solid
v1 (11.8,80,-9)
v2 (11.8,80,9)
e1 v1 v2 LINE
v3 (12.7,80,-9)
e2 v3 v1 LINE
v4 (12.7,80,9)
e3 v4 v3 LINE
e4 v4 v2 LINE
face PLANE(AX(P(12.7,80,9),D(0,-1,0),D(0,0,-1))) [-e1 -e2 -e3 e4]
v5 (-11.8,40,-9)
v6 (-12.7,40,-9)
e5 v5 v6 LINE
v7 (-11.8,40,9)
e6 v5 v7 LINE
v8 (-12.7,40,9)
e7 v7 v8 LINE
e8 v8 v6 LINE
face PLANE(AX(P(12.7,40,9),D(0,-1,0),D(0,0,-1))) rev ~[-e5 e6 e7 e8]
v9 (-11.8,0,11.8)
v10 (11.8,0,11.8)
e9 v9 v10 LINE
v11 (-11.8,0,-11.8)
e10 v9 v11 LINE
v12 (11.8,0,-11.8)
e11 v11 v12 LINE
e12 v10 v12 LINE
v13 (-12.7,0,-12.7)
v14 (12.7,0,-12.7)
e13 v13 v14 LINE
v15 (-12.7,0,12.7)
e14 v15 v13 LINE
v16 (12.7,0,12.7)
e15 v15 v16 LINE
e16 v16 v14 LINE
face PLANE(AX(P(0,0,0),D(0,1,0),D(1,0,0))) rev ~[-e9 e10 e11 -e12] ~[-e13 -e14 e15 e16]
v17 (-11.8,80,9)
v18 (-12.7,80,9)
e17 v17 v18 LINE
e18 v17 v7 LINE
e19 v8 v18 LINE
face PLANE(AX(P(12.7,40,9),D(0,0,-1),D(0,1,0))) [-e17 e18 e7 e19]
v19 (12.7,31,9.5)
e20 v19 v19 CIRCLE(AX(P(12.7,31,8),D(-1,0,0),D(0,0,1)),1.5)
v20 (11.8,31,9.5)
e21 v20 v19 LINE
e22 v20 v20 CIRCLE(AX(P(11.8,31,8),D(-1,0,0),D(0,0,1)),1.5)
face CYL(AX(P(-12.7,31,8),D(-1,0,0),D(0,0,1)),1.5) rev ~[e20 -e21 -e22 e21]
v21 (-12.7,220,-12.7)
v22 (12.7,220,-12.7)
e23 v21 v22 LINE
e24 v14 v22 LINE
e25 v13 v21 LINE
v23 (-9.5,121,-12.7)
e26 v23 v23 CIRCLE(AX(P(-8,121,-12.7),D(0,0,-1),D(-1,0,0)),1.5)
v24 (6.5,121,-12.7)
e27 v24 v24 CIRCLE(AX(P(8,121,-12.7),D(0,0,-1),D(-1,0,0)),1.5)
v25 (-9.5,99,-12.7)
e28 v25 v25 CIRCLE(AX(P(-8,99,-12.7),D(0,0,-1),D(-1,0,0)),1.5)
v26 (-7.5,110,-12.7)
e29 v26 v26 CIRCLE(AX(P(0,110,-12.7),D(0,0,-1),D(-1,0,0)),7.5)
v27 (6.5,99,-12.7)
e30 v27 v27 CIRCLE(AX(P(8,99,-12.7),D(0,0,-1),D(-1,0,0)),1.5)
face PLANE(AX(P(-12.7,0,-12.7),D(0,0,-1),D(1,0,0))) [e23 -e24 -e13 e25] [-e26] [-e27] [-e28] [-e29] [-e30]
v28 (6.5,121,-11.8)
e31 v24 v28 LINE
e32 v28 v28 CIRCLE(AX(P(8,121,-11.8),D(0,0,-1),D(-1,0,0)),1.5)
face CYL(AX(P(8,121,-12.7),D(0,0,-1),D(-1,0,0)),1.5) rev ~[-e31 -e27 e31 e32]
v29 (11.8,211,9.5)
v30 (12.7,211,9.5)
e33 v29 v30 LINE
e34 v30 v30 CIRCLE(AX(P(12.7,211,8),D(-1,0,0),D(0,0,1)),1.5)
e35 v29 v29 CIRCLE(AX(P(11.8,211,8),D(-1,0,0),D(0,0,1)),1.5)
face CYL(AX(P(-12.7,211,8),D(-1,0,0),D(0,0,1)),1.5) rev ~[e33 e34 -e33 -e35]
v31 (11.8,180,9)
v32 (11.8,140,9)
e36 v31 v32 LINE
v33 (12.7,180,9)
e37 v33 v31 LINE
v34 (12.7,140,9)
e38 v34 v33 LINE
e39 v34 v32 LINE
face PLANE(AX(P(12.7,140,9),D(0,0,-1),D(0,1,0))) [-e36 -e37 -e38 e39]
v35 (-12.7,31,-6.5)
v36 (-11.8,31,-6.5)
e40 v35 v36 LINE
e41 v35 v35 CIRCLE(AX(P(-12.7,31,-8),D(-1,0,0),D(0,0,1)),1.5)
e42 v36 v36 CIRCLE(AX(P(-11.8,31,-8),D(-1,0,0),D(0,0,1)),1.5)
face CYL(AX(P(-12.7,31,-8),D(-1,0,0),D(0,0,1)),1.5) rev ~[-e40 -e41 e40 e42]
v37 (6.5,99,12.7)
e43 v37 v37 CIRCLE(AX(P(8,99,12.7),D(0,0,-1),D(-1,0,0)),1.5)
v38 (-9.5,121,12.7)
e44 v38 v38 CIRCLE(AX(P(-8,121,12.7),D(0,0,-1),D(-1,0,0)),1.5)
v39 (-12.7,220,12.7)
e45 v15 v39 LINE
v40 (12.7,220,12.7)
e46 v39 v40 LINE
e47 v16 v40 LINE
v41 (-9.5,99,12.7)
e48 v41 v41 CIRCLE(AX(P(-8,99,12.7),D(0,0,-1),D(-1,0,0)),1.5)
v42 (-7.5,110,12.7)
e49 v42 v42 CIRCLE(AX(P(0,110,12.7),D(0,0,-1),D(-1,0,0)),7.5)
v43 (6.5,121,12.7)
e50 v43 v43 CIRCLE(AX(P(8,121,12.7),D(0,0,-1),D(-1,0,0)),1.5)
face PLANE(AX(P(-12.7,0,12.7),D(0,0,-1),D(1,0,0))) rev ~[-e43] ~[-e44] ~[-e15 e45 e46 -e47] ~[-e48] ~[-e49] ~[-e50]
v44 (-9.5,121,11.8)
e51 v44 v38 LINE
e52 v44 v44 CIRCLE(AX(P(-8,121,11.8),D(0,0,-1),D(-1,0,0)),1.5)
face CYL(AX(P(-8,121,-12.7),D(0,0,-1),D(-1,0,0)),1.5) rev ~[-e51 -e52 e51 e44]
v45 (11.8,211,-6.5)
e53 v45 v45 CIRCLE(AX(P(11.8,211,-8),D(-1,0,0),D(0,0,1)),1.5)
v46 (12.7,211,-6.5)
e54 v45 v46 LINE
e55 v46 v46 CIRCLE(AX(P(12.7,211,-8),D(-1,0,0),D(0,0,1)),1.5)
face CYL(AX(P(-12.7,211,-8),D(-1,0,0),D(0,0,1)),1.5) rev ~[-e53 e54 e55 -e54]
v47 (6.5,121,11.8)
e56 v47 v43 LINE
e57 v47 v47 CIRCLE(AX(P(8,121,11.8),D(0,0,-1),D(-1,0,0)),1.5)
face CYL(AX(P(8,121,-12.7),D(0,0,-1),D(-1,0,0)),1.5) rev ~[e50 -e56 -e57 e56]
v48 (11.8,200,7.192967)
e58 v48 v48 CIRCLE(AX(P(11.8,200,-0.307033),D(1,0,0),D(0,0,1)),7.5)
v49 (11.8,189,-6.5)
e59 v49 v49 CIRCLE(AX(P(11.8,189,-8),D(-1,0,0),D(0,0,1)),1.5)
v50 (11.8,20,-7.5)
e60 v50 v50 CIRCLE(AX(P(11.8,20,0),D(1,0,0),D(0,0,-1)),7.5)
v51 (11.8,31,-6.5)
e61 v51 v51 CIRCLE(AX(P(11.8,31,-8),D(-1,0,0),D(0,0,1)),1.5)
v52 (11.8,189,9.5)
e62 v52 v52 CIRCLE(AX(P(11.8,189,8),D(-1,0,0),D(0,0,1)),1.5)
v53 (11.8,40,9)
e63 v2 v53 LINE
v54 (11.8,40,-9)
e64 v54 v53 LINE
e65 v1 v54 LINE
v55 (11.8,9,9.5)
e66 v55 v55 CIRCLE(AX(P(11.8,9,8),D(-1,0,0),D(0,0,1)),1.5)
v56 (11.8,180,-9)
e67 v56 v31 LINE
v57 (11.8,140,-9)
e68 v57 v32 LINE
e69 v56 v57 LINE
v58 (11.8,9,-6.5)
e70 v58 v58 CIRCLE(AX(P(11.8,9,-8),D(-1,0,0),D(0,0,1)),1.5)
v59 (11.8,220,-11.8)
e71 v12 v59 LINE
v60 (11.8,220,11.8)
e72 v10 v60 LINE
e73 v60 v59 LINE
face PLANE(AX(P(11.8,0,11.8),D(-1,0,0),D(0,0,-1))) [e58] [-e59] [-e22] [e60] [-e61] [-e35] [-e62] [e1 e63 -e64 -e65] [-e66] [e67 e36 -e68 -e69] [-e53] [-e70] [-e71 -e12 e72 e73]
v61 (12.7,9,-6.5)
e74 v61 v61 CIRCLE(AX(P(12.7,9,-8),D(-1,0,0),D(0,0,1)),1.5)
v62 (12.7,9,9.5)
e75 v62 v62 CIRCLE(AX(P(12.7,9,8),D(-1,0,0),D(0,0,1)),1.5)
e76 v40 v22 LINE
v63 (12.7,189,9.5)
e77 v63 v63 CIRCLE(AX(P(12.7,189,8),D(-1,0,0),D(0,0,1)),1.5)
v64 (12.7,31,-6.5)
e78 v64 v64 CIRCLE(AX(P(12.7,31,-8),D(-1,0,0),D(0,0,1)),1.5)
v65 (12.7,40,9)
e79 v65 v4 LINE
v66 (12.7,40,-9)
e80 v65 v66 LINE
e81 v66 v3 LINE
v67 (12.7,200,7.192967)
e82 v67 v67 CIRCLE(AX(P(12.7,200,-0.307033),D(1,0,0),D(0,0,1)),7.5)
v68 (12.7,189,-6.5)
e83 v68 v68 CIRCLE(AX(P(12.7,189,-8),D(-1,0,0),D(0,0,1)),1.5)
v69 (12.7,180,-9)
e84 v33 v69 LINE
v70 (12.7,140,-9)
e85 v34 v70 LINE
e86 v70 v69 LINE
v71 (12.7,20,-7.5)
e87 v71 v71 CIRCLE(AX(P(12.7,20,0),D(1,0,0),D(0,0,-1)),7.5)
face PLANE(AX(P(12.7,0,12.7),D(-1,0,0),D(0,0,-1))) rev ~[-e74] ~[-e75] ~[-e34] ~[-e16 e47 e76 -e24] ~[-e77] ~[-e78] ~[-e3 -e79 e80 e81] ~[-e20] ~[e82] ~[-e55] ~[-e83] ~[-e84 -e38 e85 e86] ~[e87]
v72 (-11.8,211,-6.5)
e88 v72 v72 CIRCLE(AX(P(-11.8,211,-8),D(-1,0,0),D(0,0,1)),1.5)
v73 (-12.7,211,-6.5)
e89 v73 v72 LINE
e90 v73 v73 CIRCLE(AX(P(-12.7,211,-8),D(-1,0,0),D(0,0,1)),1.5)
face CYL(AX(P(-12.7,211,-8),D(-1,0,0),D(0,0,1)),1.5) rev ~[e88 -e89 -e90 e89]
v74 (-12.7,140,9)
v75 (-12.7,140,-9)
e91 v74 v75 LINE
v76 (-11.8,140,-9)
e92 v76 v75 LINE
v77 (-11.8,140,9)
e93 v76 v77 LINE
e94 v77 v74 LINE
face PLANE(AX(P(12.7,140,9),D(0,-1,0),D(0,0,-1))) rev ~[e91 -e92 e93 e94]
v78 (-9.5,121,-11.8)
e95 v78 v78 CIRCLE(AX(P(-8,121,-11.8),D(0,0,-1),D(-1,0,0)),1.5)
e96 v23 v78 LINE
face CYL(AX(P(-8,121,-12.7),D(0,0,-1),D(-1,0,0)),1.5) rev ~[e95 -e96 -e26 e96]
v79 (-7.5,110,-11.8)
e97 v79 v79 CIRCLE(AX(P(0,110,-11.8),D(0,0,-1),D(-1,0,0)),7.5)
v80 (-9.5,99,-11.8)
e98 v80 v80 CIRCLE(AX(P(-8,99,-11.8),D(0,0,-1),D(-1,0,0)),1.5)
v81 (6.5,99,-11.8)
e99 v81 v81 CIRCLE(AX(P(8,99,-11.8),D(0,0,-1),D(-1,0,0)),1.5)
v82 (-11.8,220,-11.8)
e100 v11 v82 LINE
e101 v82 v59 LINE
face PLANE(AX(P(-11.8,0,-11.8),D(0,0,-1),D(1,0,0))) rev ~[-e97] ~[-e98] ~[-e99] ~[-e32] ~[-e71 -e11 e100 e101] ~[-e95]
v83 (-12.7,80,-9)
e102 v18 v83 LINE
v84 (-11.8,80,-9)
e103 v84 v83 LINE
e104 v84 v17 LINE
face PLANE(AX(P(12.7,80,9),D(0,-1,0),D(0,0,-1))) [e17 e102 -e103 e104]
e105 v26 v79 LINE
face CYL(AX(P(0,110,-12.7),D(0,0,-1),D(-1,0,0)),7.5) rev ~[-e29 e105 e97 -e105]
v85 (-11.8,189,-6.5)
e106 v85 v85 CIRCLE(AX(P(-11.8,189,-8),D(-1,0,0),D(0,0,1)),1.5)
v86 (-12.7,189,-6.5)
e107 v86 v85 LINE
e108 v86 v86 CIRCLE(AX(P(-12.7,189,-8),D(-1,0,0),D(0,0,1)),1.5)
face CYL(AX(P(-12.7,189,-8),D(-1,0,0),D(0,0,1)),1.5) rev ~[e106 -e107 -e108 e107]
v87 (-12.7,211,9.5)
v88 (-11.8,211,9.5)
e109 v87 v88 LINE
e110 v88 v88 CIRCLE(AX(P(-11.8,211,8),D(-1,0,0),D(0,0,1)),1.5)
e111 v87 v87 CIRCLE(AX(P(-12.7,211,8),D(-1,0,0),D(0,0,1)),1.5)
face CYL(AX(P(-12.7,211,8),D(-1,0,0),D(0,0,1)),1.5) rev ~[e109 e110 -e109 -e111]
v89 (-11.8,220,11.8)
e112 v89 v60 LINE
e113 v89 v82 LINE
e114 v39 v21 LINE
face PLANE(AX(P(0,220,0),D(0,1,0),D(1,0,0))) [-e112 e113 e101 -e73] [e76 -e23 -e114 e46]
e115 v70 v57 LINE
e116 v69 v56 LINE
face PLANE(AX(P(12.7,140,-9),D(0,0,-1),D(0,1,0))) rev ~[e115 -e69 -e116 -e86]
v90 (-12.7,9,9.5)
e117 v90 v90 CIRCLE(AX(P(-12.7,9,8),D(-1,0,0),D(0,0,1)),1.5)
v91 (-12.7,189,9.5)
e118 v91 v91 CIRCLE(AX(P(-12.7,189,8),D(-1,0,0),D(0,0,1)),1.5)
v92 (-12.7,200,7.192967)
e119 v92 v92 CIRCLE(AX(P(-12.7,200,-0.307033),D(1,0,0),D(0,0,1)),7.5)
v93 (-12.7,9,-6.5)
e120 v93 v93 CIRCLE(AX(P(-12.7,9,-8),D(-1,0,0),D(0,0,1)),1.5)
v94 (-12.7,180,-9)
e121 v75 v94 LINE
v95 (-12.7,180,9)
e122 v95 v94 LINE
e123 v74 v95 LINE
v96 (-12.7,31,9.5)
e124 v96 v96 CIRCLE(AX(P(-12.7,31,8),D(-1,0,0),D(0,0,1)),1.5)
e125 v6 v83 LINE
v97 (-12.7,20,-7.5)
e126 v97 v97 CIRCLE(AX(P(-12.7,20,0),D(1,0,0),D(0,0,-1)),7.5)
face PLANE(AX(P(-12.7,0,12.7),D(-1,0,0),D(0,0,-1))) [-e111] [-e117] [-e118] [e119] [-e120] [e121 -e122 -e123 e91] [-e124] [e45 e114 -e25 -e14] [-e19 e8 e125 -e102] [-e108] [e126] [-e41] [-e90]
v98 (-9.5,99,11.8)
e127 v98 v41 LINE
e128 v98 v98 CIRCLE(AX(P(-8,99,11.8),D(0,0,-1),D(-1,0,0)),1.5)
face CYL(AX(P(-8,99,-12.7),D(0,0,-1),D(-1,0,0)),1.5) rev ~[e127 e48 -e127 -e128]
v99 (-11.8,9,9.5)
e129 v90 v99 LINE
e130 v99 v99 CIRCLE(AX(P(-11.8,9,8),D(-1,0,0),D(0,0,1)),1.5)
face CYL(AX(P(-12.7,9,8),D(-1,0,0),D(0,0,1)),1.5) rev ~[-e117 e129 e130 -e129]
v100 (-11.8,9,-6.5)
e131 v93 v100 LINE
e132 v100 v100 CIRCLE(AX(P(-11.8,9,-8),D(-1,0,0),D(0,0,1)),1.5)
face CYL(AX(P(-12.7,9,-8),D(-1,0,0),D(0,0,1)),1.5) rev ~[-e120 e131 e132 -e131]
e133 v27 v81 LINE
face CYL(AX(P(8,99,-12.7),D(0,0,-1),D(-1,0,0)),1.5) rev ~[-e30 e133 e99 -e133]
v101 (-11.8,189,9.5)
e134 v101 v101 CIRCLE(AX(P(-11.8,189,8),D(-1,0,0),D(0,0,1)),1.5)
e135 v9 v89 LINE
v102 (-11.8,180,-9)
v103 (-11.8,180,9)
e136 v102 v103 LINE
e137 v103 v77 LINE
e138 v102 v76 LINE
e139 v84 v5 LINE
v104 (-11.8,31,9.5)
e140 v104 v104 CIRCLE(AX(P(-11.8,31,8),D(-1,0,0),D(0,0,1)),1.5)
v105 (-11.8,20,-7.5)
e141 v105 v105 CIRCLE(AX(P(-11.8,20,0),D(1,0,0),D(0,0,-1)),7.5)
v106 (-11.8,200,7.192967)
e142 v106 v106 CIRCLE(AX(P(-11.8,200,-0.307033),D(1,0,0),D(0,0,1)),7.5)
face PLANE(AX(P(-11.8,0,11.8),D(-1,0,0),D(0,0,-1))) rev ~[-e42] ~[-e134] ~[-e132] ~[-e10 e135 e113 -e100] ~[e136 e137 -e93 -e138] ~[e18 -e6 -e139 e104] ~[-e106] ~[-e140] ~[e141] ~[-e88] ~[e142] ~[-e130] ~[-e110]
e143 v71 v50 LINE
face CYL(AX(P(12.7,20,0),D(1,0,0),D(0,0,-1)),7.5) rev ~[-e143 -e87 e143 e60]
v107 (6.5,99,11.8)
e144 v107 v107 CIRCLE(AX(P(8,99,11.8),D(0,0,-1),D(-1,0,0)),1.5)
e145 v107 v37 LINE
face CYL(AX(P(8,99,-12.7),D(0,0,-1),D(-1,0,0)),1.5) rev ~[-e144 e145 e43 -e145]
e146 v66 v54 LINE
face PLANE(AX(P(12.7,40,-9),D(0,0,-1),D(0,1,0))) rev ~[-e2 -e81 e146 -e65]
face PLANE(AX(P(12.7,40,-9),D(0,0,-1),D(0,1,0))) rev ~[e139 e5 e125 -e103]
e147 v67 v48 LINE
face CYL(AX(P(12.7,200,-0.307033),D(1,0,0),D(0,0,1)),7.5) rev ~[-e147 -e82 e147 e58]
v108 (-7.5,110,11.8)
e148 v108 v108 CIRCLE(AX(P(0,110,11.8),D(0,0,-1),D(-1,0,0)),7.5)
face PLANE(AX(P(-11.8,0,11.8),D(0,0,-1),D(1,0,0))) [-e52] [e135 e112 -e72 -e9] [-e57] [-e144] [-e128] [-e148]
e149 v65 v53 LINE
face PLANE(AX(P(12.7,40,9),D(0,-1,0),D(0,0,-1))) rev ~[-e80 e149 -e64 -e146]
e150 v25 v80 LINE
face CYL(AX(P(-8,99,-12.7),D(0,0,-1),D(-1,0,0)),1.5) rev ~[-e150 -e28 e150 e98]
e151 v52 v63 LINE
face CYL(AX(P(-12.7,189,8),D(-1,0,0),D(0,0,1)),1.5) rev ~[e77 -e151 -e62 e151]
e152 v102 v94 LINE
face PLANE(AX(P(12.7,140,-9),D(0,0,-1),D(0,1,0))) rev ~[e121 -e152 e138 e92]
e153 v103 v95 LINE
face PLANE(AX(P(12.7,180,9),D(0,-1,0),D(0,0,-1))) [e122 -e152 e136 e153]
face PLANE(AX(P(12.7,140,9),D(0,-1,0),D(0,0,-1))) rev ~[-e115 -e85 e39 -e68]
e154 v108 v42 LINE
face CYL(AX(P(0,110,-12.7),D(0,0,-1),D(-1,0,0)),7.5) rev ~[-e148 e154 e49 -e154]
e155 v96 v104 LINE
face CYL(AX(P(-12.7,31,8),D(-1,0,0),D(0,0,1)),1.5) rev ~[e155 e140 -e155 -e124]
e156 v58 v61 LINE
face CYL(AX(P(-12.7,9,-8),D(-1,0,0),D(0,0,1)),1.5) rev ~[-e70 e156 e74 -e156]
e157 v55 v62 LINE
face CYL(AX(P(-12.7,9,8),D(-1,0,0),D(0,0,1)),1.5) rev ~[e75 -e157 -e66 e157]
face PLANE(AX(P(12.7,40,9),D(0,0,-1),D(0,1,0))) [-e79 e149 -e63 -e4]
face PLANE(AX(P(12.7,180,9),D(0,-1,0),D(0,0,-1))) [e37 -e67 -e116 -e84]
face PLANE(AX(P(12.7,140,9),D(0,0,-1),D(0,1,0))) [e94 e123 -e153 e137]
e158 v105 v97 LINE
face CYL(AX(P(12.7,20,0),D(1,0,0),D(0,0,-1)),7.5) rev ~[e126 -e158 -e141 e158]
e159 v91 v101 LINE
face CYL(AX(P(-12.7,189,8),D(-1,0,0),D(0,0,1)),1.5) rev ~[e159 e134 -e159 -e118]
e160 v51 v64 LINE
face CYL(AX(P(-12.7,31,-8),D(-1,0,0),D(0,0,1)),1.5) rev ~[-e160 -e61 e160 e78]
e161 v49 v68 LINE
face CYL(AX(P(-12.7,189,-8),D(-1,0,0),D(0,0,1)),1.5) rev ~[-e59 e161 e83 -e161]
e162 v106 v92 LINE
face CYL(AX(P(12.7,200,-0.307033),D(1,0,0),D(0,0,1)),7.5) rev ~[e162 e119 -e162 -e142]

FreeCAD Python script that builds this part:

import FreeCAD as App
import Part
import Sketcher

V = App.Vector


def add_polygon(sketch, points):
    """Adds a closed chain of lines whose ends are joined by coincident constraints."""
    first, n = sketch.GeometryCount, len(points)
    for a, b in zip(points, points[1:] + points[:1]):
        sketch.addGeometry(Part.LineSegment(App.Vector(*a, 0), App.Vector(*b, 0)), False)
    for i in range(n):
        sketch.addConstraint(Sketcher.Constraint("Coincident", first + i, 2, first + (i + 1) % n, 1))

doc = App.newDocument("Part")
body = doc.addObject("PartDesign::Body", "Body")

sketch1 = body.newObject("Sketcher::SketchObject", "Sketch")
sketch1.AttachmentSupport = (doc.getObject("XZ_Plane"), [""])
sketch1.MapMode = "FlatFace"
add_polygon(sketch1, [(-12.7, -12.7), (-12.7, 12.7), (12.7, 12.7), (12.7, -12.7)])
add_polygon(sketch1, [(11.8, 11.8), (-11.8, 11.8), (-11.8, -11.8), (11.8, -11.8)])
sketch1.addConstraint(Sketcher.Constraint("Vertical", 0))
sketch1.addConstraint(Sketcher.Constraint("Horizontal", 1))
sketch1.addConstraint(Sketcher.Constraint("Vertical", 2))
sketch1.addConstraint(Sketcher.Constraint("Horizontal", 3))
sketch1.addConstraint(Sketcher.Constraint("Horizontal", 4))
sketch1.addConstraint(Sketcher.Constraint("Vertical", 5))
sketch1.addConstraint(Sketcher.Constraint("Horizontal", 6))
sketch1.addConstraint(Sketcher.Constraint("Vertical", 7))
sketch1.addConstraint(Sketcher.Constraint("Symmetric", 0, 2, 2, 2, -1, 1))
sketch1.addConstraint(Sketcher.Constraint("Symmetric", 4, 2, 6, 2, -1, 1))
sketch1.addConstraint(Sketcher.Constraint("Equal", 3, 0))
sketch1.addConstraint(Sketcher.Constraint("Equal", 6, 5))
sketch1.addConstraint(Sketcher.Constraint("DistanceX", 1, 1, 1, 2, 25.4))
sketch1.addConstraint(Sketcher.Constraint("DistanceX", 4, 2, 4, 1, 23.6))
pad1 = body.newObject("PartDesign::Pad", "Pad")
pad1.Profile = sketch1
pad1.Length = 220
pad1.Reversed = True

sketch2 = body.newObject("Sketcher::SketchObject", "Sketch001")
sketch2.AttachmentSupport = (doc.getObject("XY_Plane"), [""])
sketch2.MapMode = "FlatFace"
sketch2.AttachmentOffset = App.Placement(V(0, 0, -12.7), App.Rotation())
sketch2.addGeometry(Part.Circle(V(0, 110, 0), V(0, 0, 1), 7.5), False)
sketch2.addConstraint(Sketcher.Constraint("PointOnObject", 0, 3, -2))
sketch2.addConstraint(Sketcher.Constraint("Diameter", 0, 15.0))
sketch2.addConstraint(Sketcher.Constraint("DistanceY", -1, 1, 0, 3, 110.0))
pocket1 = body.newObject("PartDesign::Pocket", "Pocket")
pocket1.Profile = sketch2
pocket1.Length = 25.4
pocket1.Reversed = True

sketch3 = body.newObject("Sketcher::SketchObject", "Sketch002")
sketch3.AttachmentSupport = (doc.getObject("YZ_Plane"), [""])
sketch3.MapMode = "FlatFace"
sketch3.AttachmentOffset = App.Placement(V(0, 0, 12.7), App.Rotation())
sketch3.addGeometry(Part.Circle(V(20, 0, 0), V(0, 0, 1), 7.5), False)
sketch3.addGeometry(Part.Circle(V(200, -0.307033, 0), V(0, 0, 1), 7.5), False)
add_polygon(sketch3, [(80, 9), (40, 9), (40, -9), (80, -9)])
add_polygon(sketch3, [(180, 9), (140, 9), (140, -9), (180, -9)])
sketch3.addConstraint(Sketcher.Constraint("Horizontal", 2))
sketch3.addConstraint(Sketcher.Constraint("Vertical", 3))
sketch3.addConstraint(Sketcher.Constraint("Horizontal", 4))
sketch3.addConstraint(Sketcher.Constraint("Vertical", 5))
sketch3.addConstraint(Sketcher.Constraint("Horizontal", 6))
sketch3.addConstraint(Sketcher.Constraint("Vertical", 7))
sketch3.addConstraint(Sketcher.Constraint("Horizontal", 8))
sketch3.addConstraint(Sketcher.Constraint("Vertical", 9))
sketch3.addConstraint(Sketcher.Constraint("Equal", 0, 1))
sketch3.addConstraint(Sketcher.Constraint("PointOnObject", 0, 3, -1))
sketch3.addConstraint(Sketcher.Constraint("Horizontal", 5, 2, 6, 2))
sketch3.addConstraint(Sketcher.Constraint("Horizontal", 4, 2, 7, 2))
sketch3.addConstraint(Sketcher.Constraint("Equal", 4, 6))
sketch3.addConstraint(Sketcher.Constraint("Diameter", 0, 15.0))
sketch3.addConstraint(Sketcher.Constraint("DistanceX", 2, 2, 2, 1, 40.0))
sketch3.addConstraint(Sketcher.Constraint("DistanceY", 3, 2, 3, 1, 18.0))
sketch3.addConstraint(Sketcher.Constraint("DistanceX", -1, 1, 0, 3, 20.0))
sketch3.addConstraint(Sketcher.Constraint("DistanceX", -1, 1, 1, 3, 200.0))
sketch3.addConstraint(Sketcher.Constraint("DistanceX", -1, 1, 2, 2, 40.0))
sketch3.addConstraint(Sketcher.Constraint("DistanceY", -1, 1, 2, 2, 9.0))
sketch3.addConstraint(Sketcher.Constraint("DistanceX", -1, 1, 6, 2, 140.0))
sketch3.addConstraint(Sketcher.Constraint("DistanceY", 1, 3, -1, 1, 0.307033))
pocket2 = body.newObject("PartDesign::Pocket", "Pocket001")
pocket2.Profile = sketch3
pocket2.Length = 25.4

sketch4 = body.newObject("Sketcher::SketchObject", "Sketch003")
sketch4.AttachmentSupport = (doc.getObject("XY_Plane"), [""])
sketch4.MapMode = "FlatFace"
sketch4.AttachmentOffset = App.Placement(V(0, 0, -12.7), App.Rotation())
sketch4.addGeometry(Part.Circle(V(-8, 99, 0), V(0, 0, 1), 1.5), False)
sketch4.addGeometry(Part.Circle(V(-8, 121, 0), V(0, 0, 1), 1.5), False)
sketch4.addGeometry(Part.Circle(V(8, 121, 0), V(0, 0, 1), 1.5), False)
sketch4.addGeometry(Part.Circle(V(8, 99, 0), V(0, 0, 1), 1.5), False)
sketch4.addConstraint(Sketcher.Constraint("Equal", 0, 1))
sketch4.addConstraint(Sketcher.Constraint("Equal", 1, 2))
sketch4.addConstraint(Sketcher.Constraint("Equal", 2, 3))
sketch4.addConstraint(Sketcher.Constraint("Symmetric", 1, 3, 2, 3, -2))
sketch4.addConstraint(Sketcher.Constraint("Symmetric", 0, 3, 3, 3, -2))
sketch4.addConstraint(Sketcher.Constraint("Vertical", 0, 3, 1, 3))
sketch4.addConstraint(Sketcher.Constraint("Diameter", 0, 3.0))
sketch4.addConstraint(Sketcher.Constraint("DistanceX", 0, 3, -1, 1, 8.0))
sketch4.addConstraint(Sketcher.Constraint("DistanceY", -1, 1, 0, 3, 99.0))
sketch4.addConstraint(Sketcher.Constraint("DistanceY", -1, 1, 1, 3, 121.0))
pocket3 = body.newObject("PartDesign::Pocket", "Pocket002")
pocket3.Profile = sketch4
pocket3.Length = 25.4
pocket3.Reversed = True

sketch5 = body.newObject("Sketcher::SketchObject", "Sketch004")
sketch5.AttachmentSupport = (doc.getObject("YZ_Plane"), [""])
sketch5.MapMode = "FlatFace"
sketch5.AttachmentOffset = App.Placement(V(0, 0, -12.7), App.Rotation())
sketch5.addGeometry(Part.Circle(V(9, 8, 0), V(0, 0, 1), 1.5), False)
sketch5.addGeometry(Part.Circle(V(31, 8, 0), V(0, 0, 1), 1.5), False)
sketch5.addGeometry(Part.Circle(V(9, -8, 0), V(0, 0, 1), 1.5), False)
sketch5.addGeometry(Part.Circle(V(31, -8, 0), V(0, 0, 1), 1.5), False)
sketch5.addGeometry(Part.Circle(V(211, 8, 0), V(0, 0, 1), 1.5), False)
sketch5.addGeometry(Part.Circle(V(211, -8, 0), V(0, 0, 1), 1.5), False)
sketch5.addGeometry(Part.Circle(V(189, 8, 0), V(0, 0, 1), 1.5), False)
sketch5.addGeometry(Part.Circle(V(189, -8, 0), V(0, 0, 1), 1.5), False)
sketch5.addConstraint(Sketcher.Constraint("Equal", 0, 1))
sketch5.addConstraint(Sketcher.Constraint("Equal", 1, 2))
sketch5.addConstraint(Sketcher.Constraint("Equal", 2, 3))
sketch5.addConstraint(Sketcher.Constraint("Equal", 3, 4))
sketch5.addConstraint(Sketcher.Constraint("Equal", 4, 5))
sketch5.addConstraint(Sketcher.Constraint("Equal", 5, 6))
sketch5.addConstraint(Sketcher.Constraint("Equal", 6, 7))
sketch5.addConstraint(Sketcher.Constraint("Symmetric", 0, 3, 2, 3, -1))
sketch5.addConstraint(Sketcher.Constraint("Symmetric", 1, 3, 3, 3, -1))
sketch5.addConstraint(Sketcher.Constraint("Symmetric", 4, 3, 5, 3, -1))
sketch5.addConstraint(Sketcher.Constraint("Symmetric", 6, 3, 7, 3, -1))
sketch5.addConstraint(Sketcher.Constraint("Horizontal", 0, 3, 1, 3))
sketch5.addConstraint(Sketcher.Constraint("Horizontal", 1, 3, 4, 3))
sketch5.addConstraint(Sketcher.Constraint("Horizontal", 4, 3, 6, 3))
sketch5.addConstraint(Sketcher.Constraint("Diameter", 0, 3.0))
sketch5.addConstraint(Sketcher.Constraint("DistanceX", -1, 1, 0, 3, 9.0))
sketch5.addConstraint(Sketcher.Constraint("DistanceY", -1, 1, 0, 3, 8.0))
sketch5.addConstraint(Sketcher.Constraint("DistanceX", -1, 1, 1, 3, 31.0))
sketch5.addConstraint(Sketcher.Constraint("DistanceX", -1, 1, 4, 3, 211.0))
sketch5.addConstraint(Sketcher.Constraint("DistanceX", -1, 1, 6, 3, 189.0))
pocket4 = body.newObject("PartDesign::Pocket", "Pocket003")
pocket4.Profile = sketch5
pocket4.Length = 25.4
pocket4.Reversed = True

doc.recompute()
